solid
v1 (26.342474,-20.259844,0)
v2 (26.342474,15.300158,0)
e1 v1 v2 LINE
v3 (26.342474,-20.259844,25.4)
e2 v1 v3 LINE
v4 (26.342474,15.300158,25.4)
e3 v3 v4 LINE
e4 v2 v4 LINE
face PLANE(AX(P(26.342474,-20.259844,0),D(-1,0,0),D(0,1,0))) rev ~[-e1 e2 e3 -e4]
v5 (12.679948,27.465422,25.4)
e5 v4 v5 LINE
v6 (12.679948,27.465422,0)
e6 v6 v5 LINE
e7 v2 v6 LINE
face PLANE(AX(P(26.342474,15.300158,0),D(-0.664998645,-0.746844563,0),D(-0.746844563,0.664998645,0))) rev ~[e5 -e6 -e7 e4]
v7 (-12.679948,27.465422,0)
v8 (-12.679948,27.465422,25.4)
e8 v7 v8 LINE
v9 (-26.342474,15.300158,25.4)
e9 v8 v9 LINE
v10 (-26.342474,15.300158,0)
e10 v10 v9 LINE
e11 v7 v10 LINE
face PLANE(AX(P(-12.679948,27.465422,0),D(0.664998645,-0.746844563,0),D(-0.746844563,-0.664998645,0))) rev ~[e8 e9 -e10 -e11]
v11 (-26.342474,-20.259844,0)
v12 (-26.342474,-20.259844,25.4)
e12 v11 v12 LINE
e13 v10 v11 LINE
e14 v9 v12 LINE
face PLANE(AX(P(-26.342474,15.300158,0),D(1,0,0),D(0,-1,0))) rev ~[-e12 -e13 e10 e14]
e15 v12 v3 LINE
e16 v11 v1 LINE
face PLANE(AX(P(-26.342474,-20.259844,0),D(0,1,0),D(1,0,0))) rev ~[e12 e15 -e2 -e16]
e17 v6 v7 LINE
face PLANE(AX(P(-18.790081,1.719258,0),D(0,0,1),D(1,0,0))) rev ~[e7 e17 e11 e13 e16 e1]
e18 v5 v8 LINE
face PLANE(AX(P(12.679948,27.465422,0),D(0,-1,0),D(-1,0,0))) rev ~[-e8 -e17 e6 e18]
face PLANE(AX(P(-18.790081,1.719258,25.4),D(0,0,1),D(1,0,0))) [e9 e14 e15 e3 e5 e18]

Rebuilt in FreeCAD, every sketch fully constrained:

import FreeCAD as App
import Part
import Sketcher
Q = App.Units.Quantity


def add_polygon(sketch, points):
    """Adds a closed chain of lines whose ends are joined by coincident constraints."""
    first, n = sketch.GeometryCount, len(points)
    for a, b in zip(points, points[1:] + points[:1]):
        sketch.addGeometry(Part.LineSegment(App.Vector(*a, 0), App.Vector(*b, 0)), False)
    for i in range(n):
        sketch.addConstraint(Sketcher.Constraint("Coincident", first + i, 2, first + (i + 1) % n, 1))

doc = App.newDocument("Part")
body = doc.addObject("PartDesign::Body", "Body")

sketch1 = body.newObject("Sketcher::SketchObject", "Sketch")
sketch1.AttachmentSupport = (doc.getObject("XY_Plane"), [""])
sketch1.MapMode = "FlatFace"
add_polygon(sketch1, [(-13, 27), (-26, 15), (-26, -20), (26, -20), (26, 15), (13, 27)])
sketch1.addConstraint(Sketcher.Constraint("Vertical", 1))
sketch1.addConstraint(Sketcher.Constraint("Horizontal", 2))
sketch1.addConstraint(Sketcher.Constraint("Vertical", 3))
sketch1.addConstraint(Sketcher.Constraint("Horizontal", 5))
sketch1.addConstraint(Sketcher.Constraint("Symmetric", 0, 2, 3, 2, -2))
sketch1.addConstraint(Sketcher.Constraint("Equal", 0, 4))
sketch1.addConstraint(Sketcher.Constraint("DistanceY", 1, 2, 1, 1, Q("1.4000001 in")))
sketch1.addConstraint(Sketcher.Constraint("DistanceX", 2, 1, 2, 2, 52.684948))
sketch1.addConstraint(Sketcher.Constraint("DistanceX", 5, 2, 5, 1, 25.359896))
sketch1.addConstraint(Sketcher.Constraint("DistanceY", -1, 1, 4, 2, 27.465422))
sketch1.addConstraint(Sketcher.Constraint("Distance", 0, 18.293667))
pad1 = body.newObject("PartDesign::Pad", "Pad")
pad1.Profile = sketch1
pad1.Length = Q("1 in")

doc.recompute()
